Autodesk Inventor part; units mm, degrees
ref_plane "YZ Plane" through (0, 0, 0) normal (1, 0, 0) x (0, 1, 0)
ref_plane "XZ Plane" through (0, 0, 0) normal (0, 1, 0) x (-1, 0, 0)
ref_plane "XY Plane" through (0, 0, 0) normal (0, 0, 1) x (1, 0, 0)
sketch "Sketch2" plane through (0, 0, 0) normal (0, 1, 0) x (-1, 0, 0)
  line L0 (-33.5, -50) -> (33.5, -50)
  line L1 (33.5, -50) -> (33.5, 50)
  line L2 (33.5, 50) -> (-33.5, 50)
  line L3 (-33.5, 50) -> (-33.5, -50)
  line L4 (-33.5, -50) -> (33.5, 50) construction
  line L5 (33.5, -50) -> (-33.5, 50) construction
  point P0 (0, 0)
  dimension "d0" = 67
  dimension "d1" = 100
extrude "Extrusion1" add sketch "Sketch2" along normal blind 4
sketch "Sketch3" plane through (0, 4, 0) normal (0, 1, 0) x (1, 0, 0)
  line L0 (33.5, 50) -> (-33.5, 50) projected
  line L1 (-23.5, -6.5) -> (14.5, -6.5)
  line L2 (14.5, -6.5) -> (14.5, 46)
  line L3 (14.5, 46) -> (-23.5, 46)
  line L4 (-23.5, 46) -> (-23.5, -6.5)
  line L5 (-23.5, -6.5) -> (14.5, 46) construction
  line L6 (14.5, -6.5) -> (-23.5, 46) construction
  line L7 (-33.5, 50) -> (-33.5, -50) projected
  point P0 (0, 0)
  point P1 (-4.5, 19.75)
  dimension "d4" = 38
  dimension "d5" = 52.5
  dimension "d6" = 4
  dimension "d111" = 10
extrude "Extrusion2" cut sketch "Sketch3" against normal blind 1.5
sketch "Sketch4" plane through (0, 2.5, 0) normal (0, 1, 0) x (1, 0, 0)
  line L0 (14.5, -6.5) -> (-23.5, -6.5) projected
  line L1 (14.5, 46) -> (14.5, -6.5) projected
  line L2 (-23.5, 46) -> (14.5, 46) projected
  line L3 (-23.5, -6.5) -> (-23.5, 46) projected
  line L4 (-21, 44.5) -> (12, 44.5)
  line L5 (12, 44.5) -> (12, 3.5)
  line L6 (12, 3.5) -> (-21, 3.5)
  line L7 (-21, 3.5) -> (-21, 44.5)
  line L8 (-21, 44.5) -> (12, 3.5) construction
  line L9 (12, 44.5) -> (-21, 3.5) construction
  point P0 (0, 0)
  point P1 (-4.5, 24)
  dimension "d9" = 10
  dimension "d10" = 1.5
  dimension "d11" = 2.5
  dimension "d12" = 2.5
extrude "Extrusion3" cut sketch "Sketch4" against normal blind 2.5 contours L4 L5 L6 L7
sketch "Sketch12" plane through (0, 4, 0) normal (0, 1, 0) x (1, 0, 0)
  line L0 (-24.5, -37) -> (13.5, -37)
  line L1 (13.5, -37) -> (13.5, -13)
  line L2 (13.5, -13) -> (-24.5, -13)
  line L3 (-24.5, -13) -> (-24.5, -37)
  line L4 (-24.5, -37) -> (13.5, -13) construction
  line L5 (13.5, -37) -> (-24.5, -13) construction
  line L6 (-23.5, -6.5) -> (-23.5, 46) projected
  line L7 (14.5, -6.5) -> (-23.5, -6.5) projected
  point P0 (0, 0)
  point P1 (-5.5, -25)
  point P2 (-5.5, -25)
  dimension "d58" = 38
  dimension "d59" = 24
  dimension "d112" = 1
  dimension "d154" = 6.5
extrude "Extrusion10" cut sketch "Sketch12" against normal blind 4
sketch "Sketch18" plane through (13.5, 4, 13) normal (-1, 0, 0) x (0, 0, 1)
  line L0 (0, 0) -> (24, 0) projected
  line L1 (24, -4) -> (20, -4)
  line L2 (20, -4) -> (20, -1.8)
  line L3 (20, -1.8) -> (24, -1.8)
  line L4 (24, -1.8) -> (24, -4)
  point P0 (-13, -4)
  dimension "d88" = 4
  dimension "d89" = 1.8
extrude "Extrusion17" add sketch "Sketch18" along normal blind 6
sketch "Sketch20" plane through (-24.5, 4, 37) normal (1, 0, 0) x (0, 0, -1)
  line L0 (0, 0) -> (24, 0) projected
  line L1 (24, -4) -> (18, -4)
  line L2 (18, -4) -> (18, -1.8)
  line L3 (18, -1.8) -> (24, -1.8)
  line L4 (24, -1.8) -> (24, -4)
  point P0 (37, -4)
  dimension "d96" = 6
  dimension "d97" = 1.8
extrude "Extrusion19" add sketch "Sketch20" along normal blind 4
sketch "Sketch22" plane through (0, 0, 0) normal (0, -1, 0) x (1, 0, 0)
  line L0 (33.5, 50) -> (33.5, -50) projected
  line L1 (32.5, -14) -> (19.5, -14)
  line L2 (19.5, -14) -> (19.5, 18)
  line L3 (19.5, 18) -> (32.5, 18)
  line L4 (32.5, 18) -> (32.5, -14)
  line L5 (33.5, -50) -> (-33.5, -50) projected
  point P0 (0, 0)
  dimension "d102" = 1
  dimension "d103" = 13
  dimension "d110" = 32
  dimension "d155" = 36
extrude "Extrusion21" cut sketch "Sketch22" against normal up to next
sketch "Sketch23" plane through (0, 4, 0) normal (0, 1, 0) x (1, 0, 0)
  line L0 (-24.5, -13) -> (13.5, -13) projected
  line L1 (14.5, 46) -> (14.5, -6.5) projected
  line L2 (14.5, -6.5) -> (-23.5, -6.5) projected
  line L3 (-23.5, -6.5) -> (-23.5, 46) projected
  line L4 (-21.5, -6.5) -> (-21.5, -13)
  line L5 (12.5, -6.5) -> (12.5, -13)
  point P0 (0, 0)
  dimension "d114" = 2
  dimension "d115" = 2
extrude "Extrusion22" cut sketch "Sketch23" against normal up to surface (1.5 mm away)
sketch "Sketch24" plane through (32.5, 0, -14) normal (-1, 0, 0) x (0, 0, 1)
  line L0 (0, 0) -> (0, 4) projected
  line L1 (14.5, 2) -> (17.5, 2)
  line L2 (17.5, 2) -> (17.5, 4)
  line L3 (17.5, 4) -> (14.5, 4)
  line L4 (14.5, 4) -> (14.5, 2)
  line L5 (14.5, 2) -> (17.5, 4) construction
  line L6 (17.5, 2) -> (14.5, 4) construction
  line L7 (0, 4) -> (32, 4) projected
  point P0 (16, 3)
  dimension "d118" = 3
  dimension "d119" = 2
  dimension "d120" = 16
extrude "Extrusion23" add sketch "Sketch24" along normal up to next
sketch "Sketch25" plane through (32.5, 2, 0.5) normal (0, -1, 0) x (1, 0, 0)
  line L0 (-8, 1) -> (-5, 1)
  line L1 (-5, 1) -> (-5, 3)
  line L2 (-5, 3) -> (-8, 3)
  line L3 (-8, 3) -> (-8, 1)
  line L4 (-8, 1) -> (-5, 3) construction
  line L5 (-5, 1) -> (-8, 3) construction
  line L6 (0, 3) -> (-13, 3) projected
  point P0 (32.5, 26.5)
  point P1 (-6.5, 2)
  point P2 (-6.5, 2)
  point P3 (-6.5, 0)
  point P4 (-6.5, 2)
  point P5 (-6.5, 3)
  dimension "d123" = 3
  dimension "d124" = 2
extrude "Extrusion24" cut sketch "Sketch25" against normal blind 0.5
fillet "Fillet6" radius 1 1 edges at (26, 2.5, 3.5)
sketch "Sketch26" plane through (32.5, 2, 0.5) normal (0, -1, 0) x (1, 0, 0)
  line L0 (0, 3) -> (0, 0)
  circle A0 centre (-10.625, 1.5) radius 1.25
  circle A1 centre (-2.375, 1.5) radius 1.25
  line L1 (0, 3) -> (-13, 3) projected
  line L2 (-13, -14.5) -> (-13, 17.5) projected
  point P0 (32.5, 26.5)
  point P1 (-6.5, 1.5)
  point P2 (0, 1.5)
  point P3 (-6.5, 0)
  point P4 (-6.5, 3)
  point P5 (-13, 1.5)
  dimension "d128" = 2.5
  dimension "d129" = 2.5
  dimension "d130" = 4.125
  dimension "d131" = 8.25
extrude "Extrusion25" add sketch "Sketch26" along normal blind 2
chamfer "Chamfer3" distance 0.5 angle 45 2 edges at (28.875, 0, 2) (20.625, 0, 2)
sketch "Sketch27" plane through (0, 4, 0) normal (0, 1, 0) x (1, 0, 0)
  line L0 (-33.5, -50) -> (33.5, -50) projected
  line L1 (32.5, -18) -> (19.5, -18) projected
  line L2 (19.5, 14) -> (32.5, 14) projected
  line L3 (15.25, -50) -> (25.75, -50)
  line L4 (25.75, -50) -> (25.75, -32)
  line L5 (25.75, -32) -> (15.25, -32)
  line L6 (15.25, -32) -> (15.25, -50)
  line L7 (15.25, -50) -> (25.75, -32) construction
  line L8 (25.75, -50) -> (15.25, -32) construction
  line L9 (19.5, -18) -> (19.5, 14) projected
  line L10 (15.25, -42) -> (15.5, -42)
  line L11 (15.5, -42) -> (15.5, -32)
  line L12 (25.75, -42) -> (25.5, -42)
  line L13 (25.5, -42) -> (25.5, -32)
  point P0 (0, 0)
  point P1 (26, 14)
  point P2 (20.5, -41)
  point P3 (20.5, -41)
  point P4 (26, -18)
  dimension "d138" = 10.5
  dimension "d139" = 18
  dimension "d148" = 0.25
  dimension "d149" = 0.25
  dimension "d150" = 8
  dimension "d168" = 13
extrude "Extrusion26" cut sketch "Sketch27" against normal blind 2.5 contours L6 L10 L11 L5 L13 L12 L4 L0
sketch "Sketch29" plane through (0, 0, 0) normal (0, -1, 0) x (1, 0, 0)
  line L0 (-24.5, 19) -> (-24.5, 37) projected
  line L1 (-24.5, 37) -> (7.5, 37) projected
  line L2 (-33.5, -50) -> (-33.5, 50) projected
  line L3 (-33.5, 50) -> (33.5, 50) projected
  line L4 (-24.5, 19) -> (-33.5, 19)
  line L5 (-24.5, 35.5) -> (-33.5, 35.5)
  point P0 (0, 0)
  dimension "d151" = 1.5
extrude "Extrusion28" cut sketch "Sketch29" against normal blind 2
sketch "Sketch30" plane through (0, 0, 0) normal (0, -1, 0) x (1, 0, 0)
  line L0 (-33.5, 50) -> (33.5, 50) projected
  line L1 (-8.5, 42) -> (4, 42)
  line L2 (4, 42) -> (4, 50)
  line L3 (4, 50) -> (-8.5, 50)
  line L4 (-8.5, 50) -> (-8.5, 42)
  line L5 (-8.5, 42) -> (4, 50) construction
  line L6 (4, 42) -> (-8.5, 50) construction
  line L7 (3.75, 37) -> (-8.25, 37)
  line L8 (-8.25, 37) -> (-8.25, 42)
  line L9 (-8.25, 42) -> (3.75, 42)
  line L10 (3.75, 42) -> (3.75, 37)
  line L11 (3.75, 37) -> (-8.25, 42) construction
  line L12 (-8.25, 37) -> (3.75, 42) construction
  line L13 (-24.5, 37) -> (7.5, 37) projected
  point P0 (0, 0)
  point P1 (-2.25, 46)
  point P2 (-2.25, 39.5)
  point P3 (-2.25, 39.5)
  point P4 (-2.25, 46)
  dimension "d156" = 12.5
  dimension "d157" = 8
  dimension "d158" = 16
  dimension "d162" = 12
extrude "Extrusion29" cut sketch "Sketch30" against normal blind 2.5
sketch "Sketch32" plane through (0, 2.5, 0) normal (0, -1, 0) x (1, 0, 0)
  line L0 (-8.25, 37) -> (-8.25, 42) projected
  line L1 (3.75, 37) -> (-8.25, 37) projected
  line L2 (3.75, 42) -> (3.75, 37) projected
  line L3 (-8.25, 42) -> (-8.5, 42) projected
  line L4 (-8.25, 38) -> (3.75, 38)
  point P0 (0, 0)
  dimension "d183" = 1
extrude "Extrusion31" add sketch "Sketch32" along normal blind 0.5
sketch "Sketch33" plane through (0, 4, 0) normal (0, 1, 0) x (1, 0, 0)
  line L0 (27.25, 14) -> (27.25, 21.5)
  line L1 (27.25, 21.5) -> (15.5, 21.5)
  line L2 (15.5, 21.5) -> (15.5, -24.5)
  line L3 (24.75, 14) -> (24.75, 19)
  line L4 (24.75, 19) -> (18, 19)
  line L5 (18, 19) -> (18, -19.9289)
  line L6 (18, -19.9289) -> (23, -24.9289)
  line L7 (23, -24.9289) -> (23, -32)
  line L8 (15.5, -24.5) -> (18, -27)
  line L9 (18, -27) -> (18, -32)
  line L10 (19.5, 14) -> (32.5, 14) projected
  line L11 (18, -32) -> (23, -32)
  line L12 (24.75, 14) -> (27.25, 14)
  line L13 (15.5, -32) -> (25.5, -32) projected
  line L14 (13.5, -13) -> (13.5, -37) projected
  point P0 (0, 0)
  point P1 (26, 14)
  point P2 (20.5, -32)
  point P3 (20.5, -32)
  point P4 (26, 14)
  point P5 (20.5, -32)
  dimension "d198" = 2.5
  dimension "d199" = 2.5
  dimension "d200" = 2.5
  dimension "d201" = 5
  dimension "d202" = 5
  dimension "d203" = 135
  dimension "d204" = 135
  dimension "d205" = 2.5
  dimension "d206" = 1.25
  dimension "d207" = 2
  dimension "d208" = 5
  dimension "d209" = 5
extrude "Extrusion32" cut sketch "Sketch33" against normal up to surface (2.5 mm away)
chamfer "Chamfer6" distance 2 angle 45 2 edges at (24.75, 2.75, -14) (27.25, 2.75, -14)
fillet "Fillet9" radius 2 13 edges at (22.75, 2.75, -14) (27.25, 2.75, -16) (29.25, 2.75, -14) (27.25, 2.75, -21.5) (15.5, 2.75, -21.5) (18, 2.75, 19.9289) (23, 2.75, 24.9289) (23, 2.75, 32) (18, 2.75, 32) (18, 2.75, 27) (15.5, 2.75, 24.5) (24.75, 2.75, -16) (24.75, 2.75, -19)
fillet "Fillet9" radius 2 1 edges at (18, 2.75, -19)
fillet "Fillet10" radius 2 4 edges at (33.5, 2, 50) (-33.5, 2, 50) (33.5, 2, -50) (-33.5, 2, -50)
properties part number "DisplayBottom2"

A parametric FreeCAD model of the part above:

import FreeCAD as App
import Part
import Sketcher
from FreeCAD import Vector
Q = App.Units.Quantity


def edges_at(feature, points):
    """Names of the edges that pass closest to the given points."""
    edges = feature.Shape.Edges
    near = lambda p: min(range(len(edges)), key=lambda i: edges[i].distToShape(Part.Vertex(*p))[0])
    return sorted({f"Edge{near(p) + 1}" for p in points})

doc = App.newDocument("Part")
body = doc.addObject("PartDesign::Body", "Body")

# Sketch on XZ plane
sketch1 = doc.addObject("Sketcher::SketchObject", "Sketch")
body.addObject(sketch1)
sketch1.AttachmentSupport = (doc.XZ_Plane, [""])
sketch1.MapMode = "FlatFace"
sketch1.addGeometry([
    Part.LineSegment(Vector(33.5, 50, 0), Vector(33.5, -50, 0)),
    Part.LineSegment(Vector(33.5, -50, 0), Vector(-33.5, -50, 0)),
    Part.LineSegment(Vector(-33.5, -50, 0), Vector(-33.5, 50, 0)),
    Part.LineSegment(Vector(-33.5, 50, 0), Vector(33.5, 50, 0)),
], False)
sketch1.addConstraint([
    Sketcher.Constraint("Coincident", 0, 2, 1, 1),
    Sketcher.Constraint("Coincident", 1, 2, 2, 1),
    Sketcher.Constraint("Coincident", 2, 2, 3, 1),
    Sketcher.Constraint("Coincident", 3, 2, 0, 1),
    Sketcher.Constraint("Vertical", 0),
    Sketcher.Constraint("Horizontal", 1),
    Sketcher.Constraint("Vertical", 2),
    Sketcher.Constraint("Horizontal", 3),
    Sketcher.Constraint("Symmetric", 0, 2, 2, 2, -1, 1),
    Sketcher.Constraint("DistanceX", 1, 2, 1, 1, Q("67 mm")),
    Sketcher.Constraint("DistanceY", 0, 2, 0, 1, Q("100 mm")),
])
pad1 = doc.addObject("PartDesign::Pad", "Pad")
body.addObject(pad1)
pad1.Profile = sketch1
pad1.Length = 4
pad1.Reversed = True

# Sketch on XZ plane
sketch2 = doc.addObject("Sketcher::SketchObject", "Sketch001")
body.addObject(sketch2)
sketch2.AttachmentSupport = (doc.XZ_Plane, [""])
sketch2.MapMode = "FlatFace"
sketch2.AttachmentOffset = App.Placement(Vector(0, 0, -4), App.Rotation())
sketch2.addGeometry([
    Part.LineSegment(Vector(-23.5, -46, 0), Vector(-23.5, 6.5, 0)),
    Part.LineSegment(Vector(-23.5, 6.5, 0), Vector(14.5, 6.5, 0)),
    Part.LineSegment(Vector(14.5, 6.5, 0), Vector(14.5, -46, 0)),
    Part.LineSegment(Vector(14.5, -46, 0), Vector(-23.5, -46, 0)),
], False)
sketch2.addConstraint([
    Sketcher.Constraint("Coincident", 0, 2, 1, 1),
    Sketcher.Constraint("Coincident", 1, 2, 2, 1),
    Sketcher.Constraint("Coincident", 2, 2, 3, 1),
    Sketcher.Constraint("Coincident", 3, 2, 0, 1),
    Sketcher.Constraint("Vertical", 0),
    Sketcher.Constraint("Horizontal", 1),
    Sketcher.Constraint("Vertical", 2),
    Sketcher.Constraint("Horizontal", 3),
    Sketcher.Constraint("DistanceX", 1, 1, 1, 2, Q("38 mm")),
    Sketcher.Constraint("DistanceY", 0, 1, 0, 2, Q("52.5 mm")),
    Sketcher.Constraint("DistanceY", 2, 2, -1, 1, Q("46 mm")),
    Sketcher.Constraint("DistanceX", 0, 2, -1, 1, Q("23.5 mm")),
])
pocket1 = doc.addObject("PartDesign::Pocket", "Pocket")
body.addObject(pocket1)
pocket1.Profile = sketch2
pocket1.Length = 1.5
pocket1.Reversed = True

# Sketch on XZ plane
sketch3 = doc.addObject("Sketcher::SketchObject", "Sketch002")
body.addObject(sketch3)
sketch3.AttachmentSupport = (doc.XZ_Plane, [""])
sketch3.MapMode = "FlatFace"
sketch3.AttachmentOffset = App.Placement(Vector(0, 0, -2.5), App.Rotation())
sketch3.addGeometry([
    Part.LineSegment(Vector(12, -44.5, 0), Vector(-21, -44.5, 0)),
    Part.LineSegment(Vector(-21, -44.5, 0), Vector(-21, -3.5, 0)),
    Part.LineSegment(Vector(-21, -3.5, 0), Vector(12, -3.5, 0)),
    Part.LineSegment(Vector(12, -3.5, 0), Vector(12, -44.5, 0)),
], False)
sketch3.addConstraint([
    Sketcher.Constraint("Coincident", 0, 2, 1, 1),
    Sketcher.Constraint("Coincident", 1, 2, 2, 1),
    Sketcher.Constraint("Coincident", 2, 2, 3, 1),
    Sketcher.Constraint("Coincident", 3, 2, 0, 1),
    Sketcher.Constraint("Horizontal", 0),
    Sketcher.Constraint("Vertical", 1),
    Sketcher.Constraint("Horizontal", 2),
    Sketcher.Constraint("Vertical", 3),
    Sketcher.Constraint("DistanceX", 0, 2, 0, 1, Q("33 mm")),
    Sketcher.Constraint("DistanceY", 1, 1, 1, 2, Q("41 mm")),
    Sketcher.Constraint("DistanceX", 0, 2, -1, 1, Q("21 mm")),
    Sketcher.Constraint("DistanceY", 0, 2, -1, 1, Q("44.5 mm")),
])
pocket2 = doc.addObject("PartDesign::Pocket", "Pocket001")
body.addObject(pocket2)
pocket2.Profile = sketch3
pocket2.Length = 2.5
pocket2.Reversed = True

# Sketch on XZ plane
sketch4 = doc.addObject("Sketcher::SketchObject", "Sketch003")
body.addObject(sketch4)
sketch4.AttachmentSupport = (doc.XZ_Plane, [""])
sketch4.MapMode = "FlatFace"
sketch4.AttachmentOffset = App.Placement(Vector(0, 0, -4), App.Rotation())
sketch4.addGeometry([
    Part.LineSegment(Vector(-24.5, 13, 0), Vector(-24.5, 37, 0)),
    Part.LineSegment(Vector(-24.5, 37, 0), Vector(13.5, 37, 0)),
    Part.LineSegment(Vector(13.5, 37, 0), Vector(13.5, 13, 0)),
    Part.LineSegment(Vector(13.5, 13, 0), Vector(-24.5, 13, 0)),
], False)
sketch4.addConstraint([
    Sketcher.Constraint("Coincident", 0, 2, 1, 1),
    Sketcher.Constraint("Coincident", 1, 2, 2, 1),
    Sketcher.Constraint("Coincident", 2, 2, 3, 1),
    Sketcher.Constraint("Coincident", 3, 2, 0, 1),
    Sketcher.Constraint("Vertical", 0),
    Sketcher.Constraint("Horizontal", 1),
    Sketcher.Constraint("Vertical", 2),
    Sketcher.Constraint("Horizontal", 3),
    Sketcher.Constraint("DistanceX", 1, 1, 1, 2, Q("38 mm")),
    Sketcher.Constraint("DistanceY", 0, 1, 0, 2, Q("24 mm")),
    Sketcher.Constraint("DistanceY", -1, 1, 0, 2, Q("37 mm")),
    Sketcher.Constraint("DistanceX", 0, 2, -1, 1, Q("24.5 mm")),
])
pocket3 = doc.addObject("PartDesign::Pocket", "Pocket002")
body.addObject(pocket3)
pocket3.Profile = sketch4
pocket3.Length = 4
pocket3.Reversed = True

# Sketch on YZ plane
sketch5 = doc.addObject("Sketcher::SketchObject", "Sketch004")
body.addObject(sketch5)
sketch5.AttachmentSupport = (doc.YZ_Plane, [""])
sketch5.MapMode = "FlatFace"
sketch5.AttachmentOffset = App.Placement(Vector(0, 0, 13.5), App.Rotation())
sketch5.addGeometry([
    Part.LineSegment(Vector(0, 33, 0), Vector(0, 37, 0)),
    Part.LineSegment(Vector(0, 37, 0), Vector(2.2, 37, 0)),
    Part.LineSegment(Vector(2.2, 37, 0), Vector(2.2, 33, 0)),
    Part.LineSegment(Vector(2.2, 33, 0), Vector(0, 33, 0)),
], False)
sketch5.addConstraint([
    Sketcher.Constraint("Coincident", 0, 2, 1, 1),
    Sketcher.Constraint("Coincident", 1, 2, 2, 1),
    Sketcher.Constraint("Coincident", 2, 2, 3, 1),
    Sketcher.Constraint("Coincident", 3, 2, 0, 1),
    Sketcher.Constraint("Vertical", 0),
    Sketcher.Constraint("Horizontal", 1),
    Sketcher.Constraint("Vertical", 2),
    Sketcher.Constraint("Horizontal", 3),
    Sketcher.Constraint("PointOnObject", 0, 2, -2),
    Sketcher.Constraint("DistanceY", 0, 1, 0, 2, Q("4 mm")),
    Sketcher.Constraint("DistanceX", 1, 1, 1, 2, Q("2.2 mm")),
    Sketcher.Constraint("DistanceY", -1, 1, 0, 2, Q("37 mm")),
])
pad2 = doc.addObject("PartDesign::Pad", "Pad001")
body.addObject(pad2)
pad2.Profile = sketch5
pad2.Length = 6
pad2.Reversed = True

# Sketch on YZ plane
sketch6 = doc.addObject("Sketcher::SketchObject", "Sketch005")
body.addObject(sketch6)
sketch6.AttachmentSupport = (doc.YZ_Plane, [""])
sketch6.MapMode = "FlatFace"
sketch6.AttachmentOffset = App.Placement(Vector(0, 0, -24.5), App.Rotation())
sketch6.addGeometry([
    Part.LineSegment(Vector(0, 19, 0), Vector(0, 13, 0)),
    Part.LineSegment(Vector(0, 13, 0), Vector(2.2, 13, 0)),
    Part.LineSegment(Vector(2.2, 13, 0), Vector(2.2, 19, 0)),
    Part.LineSegment(Vector(2.2, 19, 0), Vector(0, 19, 0)),
], False)
sketch6.addConstraint([
    Sketcher.Constraint("Coincident", 0, 2, 1, 1),
    Sketcher.Constraint("Coincident", 1, 2, 2, 1),
    Sketcher.Constraint("Coincident", 2, 2, 3, 1),
    Sketcher.Constraint("Coincident", 3, 2, 0, 1),
    Sketcher.Constraint("Vertical", 0),
    Sketcher.Constraint("Horizontal", 1),
    Sketcher.Constraint("Vertical", 2),
    Sketcher.Constraint("Horizontal", 3),
    Sketcher.Constraint("PointOnObject", 0, 2, -2),
    Sketcher.Constraint("DistanceY", 0, 2, 0, 1, Q("6 mm")),
    Sketcher.Constraint("DistanceX", 1, 1, 1, 2, Q("2.2 mm")),
    Sketcher.Constraint("DistanceY", -1, 1, 0, 2, Q("13 mm")),
])
pad3 = doc.addObject("PartDesign::Pad", "Pad002")
body.addObject(pad3)
pad3.Profile = sketch6
pad3.Length = 4

# Sketch on XZ plane
sketch7 = doc.addObject("Sketcher::SketchObject", "Sketch006")
body.addObject(sketch7)
sketch7.AttachmentSupport = (doc.XZ_Plane, [""])
sketch7.MapMode = "FlatFace"
sketch7.addGeometry([
    Part.LineSegment(Vector(19.5, -14, 0), Vector(32.5, -14, 0)),
    Part.LineSegment(Vector(32.5, -14, 0), Vector(32.5, 18, 0)),
    Part.LineSegment(Vector(32.5, 18, 0), Vector(19.5, 18, 0)),
    Part.LineSegment(Vector(19.5, 18, 0), Vector(19.5, -14, 0)),
], False)
sketch7.addConstraint([
    Sketcher.Constraint("Coincident", 0, 2, 1, 1),
    Sketcher.Constraint("Coincident", 1, 2, 2, 1),
    Sketcher.Constraint("Coincident", 2, 2, 3, 1),
    Sketcher.Constraint("Coincident", 3, 2, 0, 1),
    Sketcher.Constraint("Horizontal", 0),
    Sketcher.Constraint("Vertical", 1),
    Sketcher.Constraint("Horizontal", 2),
    Sketcher.Constraint("Vertical", 3),
    Sketcher.Constraint("DistanceX", 0, 1, 0, 2, Q("13 mm")),
    Sketcher.Constraint("DistanceY", 1, 1, 1, 2, Q("32 mm")),
    Sketcher.Constraint("DistanceY", 0, 2, -1, 1, Q("14 mm")),
    Sketcher.Constraint("DistanceX", -1, 1, 0, 2, Q("32.5 mm")),
])
pocket4 = doc.addObject("PartDesign::Pocket", "Pocket003")
body.addObject(pocket4)
pocket4.Profile = sketch7
pocket4.Type = "UpToFirst"

# Sketch on XZ plane
sketch8 = doc.addObject("Sketcher::SketchObject", "Sketch007")
body.addObject(sketch8)
sketch8.AttachmentSupport = (doc.XZ_Plane, [""])
sketch8.MapMode = "FlatFace"
sketch8.AttachmentOffset = App.Placement(Vector(0, 0, -4), App.Rotation())
sketch8.addGeometry([
    Part.LineSegment(Vector(-21.5, 6.5, 0), Vector(-21.5, 13, 0)),
    Part.LineSegment(Vector(-21.5, 13, 0), Vector(12.5, 13, 0)),
    Part.LineSegment(Vector(12.5, 13, 0), Vector(12.5, 6.5, 0)),
    Part.LineSegment(Vector(12.5, 6.5, 0), Vector(-21.5, 6.5, 0)),
], False)
sketch8.addConstraint([
    Sketcher.Constraint("Coincident", 0, 2, 1, 1),
    Sketcher.Constraint("Coincident", 1, 2, 2, 1),
    Sketcher.Constraint("Coincident", 2, 2, 3, 1),
    Sketcher.Constraint("Coincident", 3, 2, 0, 1),
    Sketcher.Constraint("Vertical", 0),
    Sketcher.Constraint("Horizontal", 1),
    Sketcher.Constraint("Vertical", 2),
    Sketcher.Constraint("Horizontal", 3),
    Sketcher.Constraint("DistanceX", 1, 1, 1, 2, Q("34 mm")),
    Sketcher.Constraint("DistanceY", 0, 1, 0, 2, Q("6.5 mm")),
    Sketcher.Constraint("DistanceY", -1, 1, 0, 2, Q("13 mm")),
    Sketcher.Constraint("DistanceX", 0, 2, -1, 1, Q("21.5 mm")),
])
pocket5 = doc.addObject("PartDesign::Pocket", "Pocket004")
body.addObject(pocket5)
pocket5.Profile = sketch8
pocket5.Length = 1.5
pocket5.Reversed = True

# Sketch on YZ plane
sketch9 = doc.addObject("Sketcher::SketchObject", "Sketch008")
body.addObject(sketch9)
sketch9.AttachmentSupport = (doc.YZ_Plane, [""])
sketch9.MapMode = "FlatFace"
sketch9.AttachmentOffset = App.Placement(Vector(0, 0, 32.5), App.Rotation())
sketch9.addGeometry([
    Part.LineSegment(Vector(4, 0.5, 0), Vector(2, 0.5, 0)),
    Part.LineSegment(Vector(2, 0.5, 0), Vector(2, 3.5, 0)),
    Part.LineSegment(Vector(2, 3.5, 0), Vector(4, 3.5, 0)),
    Part.LineSegment(Vector(4, 3.5, 0), Vector(4, 0.5, 0)),
], False)
sketch9.addConstraint([
    Sketcher.Constraint("Coincident", 0, 2, 1, 1),
    Sketcher.Constraint("Coincident", 1, 2, 2, 1),
    Sketcher.Constraint("Coincident", 2, 2, 3, 1),
    Sketcher.Constraint("Coincident", 3, 2, 0, 1),
    Sketcher.Constraint("Horizontal", 0),
    Sketcher.Constraint("Vertical", 1),
    Sketcher.Constraint("Horizontal", 2),
    Sketcher.Constraint("Vertical", 3),
    Sketcher.Constraint("DistanceX", 0, 2, 0, 1, Q("2 mm")),
    Sketcher.Constraint("DistanceY", 1, 1, 1, 2, Q("3 mm")),
    Sketcher.Constraint("DistanceX", -1, 1, 0, 2, Q("2 mm")),
    Sketcher.Constraint("DistanceY", -1, 1, 0, 2, Q("0.5 mm")),
])
pad4 = doc.addObject("PartDesign::Pad", "Pad003")
body.addObject(pad4)
pad4.Profile = sketch9
pad4.Type = "UpToFirst"
pad4.Reversed = True

# Sketch on XZ plane
sketch10 = doc.addObject("Sketcher::SketchObject", "Sketch009")
body.addObject(sketch10)
sketch10.AttachmentSupport = (doc.XZ_Plane, [""])
sketch10.MapMode = "FlatFace"
sketch10.AttachmentOffset = App.Placement(Vector(0, 0, -2), App.Rotation())
sketch10.addGeometry([
    Part.LineSegment(Vector(24.5, 3.5, 0), Vector(24.5, 1.5, 0)),
    Part.LineSegment(Vector(24.5, 1.5, 0), Vector(27.5, 1.5, 0)),
    Part.LineSegment(Vector(27.5, 1.5, 0), Vector(27.5, 3.5, 0)),
    Part.LineSegment(Vector(27.5, 3.5, 0), Vector(24.5, 3.5, 0)),
], False)
sketch10.addConstraint([
    Sketcher.Constraint("Coincident", 0, 2, 1, 1),
    Sketcher.Constraint("Coincident", 1, 2, 2, 1),
    Sketcher.Constraint("Coincident", 2, 2, 3, 1),
    Sketcher.Constraint("Coincident", 3, 2, 0, 1),
    Sketcher.Constraint("Vertical", 0),
    Sketcher.Constraint("Horizontal", 1),
    Sketcher.Constraint("Vertical", 2),
    Sketcher.Constraint("Horizontal", 3),
    Sketcher.Constraint("DistanceX", 1, 1, 1, 2, Q("3 mm")),
    Sketcher.Constraint("DistanceY", 0, 2, 0, 1, Q("2 mm")),
    Sketcher.Constraint("DistanceX", -1, 1, 0, 2, Q("24.5 mm")),
    Sketcher.Constraint("DistanceY", -1, 1, 0, 2, Q("1.5 mm")),
])
pocket6 = doc.addObject("PartDesign::Pocket", "Pocket005")
body.addObject(pocket6)
pocket6.Profile = sketch10
pocket6.Length = 0.5
doc.recompute()

fillet = doc.addObject("PartDesign::Fillet", "Fillet")
body.addObject(fillet)
fillet.Base = (pocket6, edges_at(pocket6, [(26, 2.5, 3.5)]))
fillet.Radius = 1

# Sketch on XZ plane
sketch11 = doc.addObject("Sketcher::SketchObject", "Sketch010")
body.addObject(sketch11)
sketch11.AttachmentSupport = (doc.XZ_Plane, [""])
sketch11.MapMode = "FlatFace"
sketch11.AttachmentOffset = App.Placement(Vector(0, 0, -2), App.Rotation())
sketch11.addGeometry([
    Part.Circle(Vector(21.875, 2, 0), Vector(0, 0, 1), 1.25),
    Part.Circle(Vector(30.125, 2, 0), Vector(0, 0, 1), 1.25),
], False)
sketch11.addConstraint([
    Sketcher.Constraint("Equal", 0, 1),
    Sketcher.Constraint("Horizontal", 0, 3, 1, 3),
    Sketcher.Constraint("Diameter", 0, Q("2.5 mm")),
    Sketcher.Constraint("DistanceX", 0, 3, 1, 3, Q("8.25 mm")),
    Sketcher.Constraint("DistanceY", -1, 1, 0, 3, Q("2 mm")),
    Sketcher.Constraint("DistanceX", -1, 1, 0, 3, Q("21.875 mm")),
])
pad5 = doc.addObject("PartDesign::Pad", "Pad004")
body.addObject(pad5)
pad5.Profile = sketch11
pad5.Length = 2
doc.recompute()

chamfer = doc.addObject("PartDesign::Chamfer", "Chamfer")
body.addObject(chamfer)
chamfer.Base = (pad5, edges_at(pad5, [(28.875, 0, 2), (20.625, 0, 2)]))
chamfer.Size = 0.5

# Sketch on XZ plane
sketch12 = doc.addObject("Sketcher::SketchObject", "Sketch011")
body.addObject(sketch12)
sketch12.AttachmentSupport = (doc.XZ_Plane, [""])
sketch12.MapMode = "FlatFace"
sketch12.AttachmentOffset = App.Placement(Vector(0, 0, -4), App.Rotation())
sketch12.addGeometry([
    Part.LineSegment(Vector(15.25, 42, 0), Vector(15.25, 50, 0)),  # 0
    Part.LineSegment(Vector(15.25, 50, 0), Vector(25.75, 50, 0)),  # 1
    Part.LineSegment(Vector(25.75, 50, 0), Vector(25.75, 42, 0)),  # 2
    Part.LineSegment(Vector(25.75, 42, 0), Vector(25.5, 42, 0)),  # 3
    Part.LineSegment(Vector(25.5, 42, 0), Vector(25.5, 32, 0)),  # 4
    Part.LineSegment(Vector(25.5, 32, 0), Vector(15.5, 32, 0)),  # 5
    Part.LineSegment(Vector(15.5, 32, 0), Vector(15.5, 42, 0)),  # 6
    Part.LineSegment(Vector(15.5, 42, 0), Vector(15.25, 42, 0)),  # 7
], False)
sketch12.addConstraint([
    Sketcher.Constraint("Coincident", 0, 2, 1, 1),
    Sketcher.Constraint("Coincident", 1, 2, 2, 1),
    Sketcher.Constraint("Coincident", 2, 2, 3, 1),
    Sketcher.Constraint("Coincident", 3, 2, 4, 1),
    Sketcher.Constraint("Coincident", 4, 2, 5, 1),
    Sketcher.Constraint("Coincident", 5, 2, 6, 1),
    Sketcher.Constraint("Coincident", 6, 2, 7, 1),
    Sketcher.Constraint("Coincident", 7, 2, 0, 1),
    Sketcher.Constraint("Vertical", 0),
    Sketcher.Constraint("Horizontal", 1),
    Sketcher.Constraint("Vertical", 2),
    Sketcher.Constraint("Horizontal", 3),
    Sketcher.Constraint("Vertical", 4),
    Sketcher.Constraint("Horizontal", 5),
    Sketcher.Constraint("Vertical", 6),
    Sketcher.Constraint("Horizontal", 7),
    Sketcher.Constraint("Horizontal", 3, 2, 6, 2),
    Sketcher.Constraint("Equal", 3, 7),
    Sketcher.Constraint("Equal", 5, 4),
    Sketcher.Constraint("DistanceY", 0, 1, 0, 2, Q("8 mm")),
    Sketcher.Constraint("DistanceX", 1, 1, 1, 2, Q("10.5 mm")),
    Sketcher.Constraint("DistanceY", 4, 2, 1, 2, Q("18 mm")),
    Sketcher.Constraint("DistanceY", -1, 1, 0, 2, Q("50 mm")),
    Sketcher.Constraint("DistanceX", -1, 1, 3, 2, Q("25.5 mm")),
])
pocket7 = doc.addObject("PartDesign::Pocket", "Pocket006")
body.addObject(pocket7)
pocket7.Profile = sketch12
pocket7.Length = 2.5
pocket7.Reversed = True

# Sketch on XZ plane
sketch13 = doc.addObject("Sketcher::SketchObject", "Sketch012")
body.addObject(sketch13)
sketch13.AttachmentSupport = (doc.XZ_Plane, [""])
sketch13.MapMode = "FlatFace"
sketch13.addGeometry([
    Part.LineSegment(Vector(-33.5, 19, 0), Vector(-24.5, 19, 0)),
    Part.LineSegment(Vector(-24.5, 19, 0), Vector(-24.5, 35.5, 0)),
    Part.LineSegment(Vector(-24.5, 35.5, 0), Vector(-33.5, 35.5, 0)),
    Part.LineSegment(Vector(-33.5, 35.5, 0), Vector(-33.5, 19, 0)),
], False)
sketch13.addConstraint([
    Sketcher.Constraint("Coincident", 0, 2, 1, 1),
    Sketcher.Constraint("Coincident", 1, 2, 2, 1),
    Sketcher.Constraint("Coincident", 2, 2, 3, 1),
    Sketcher.Constraint("Coincident", 3, 2, 0, 1),
    Sketcher.Constraint("Horizontal", 0),
    Sketcher.Constraint("Vertical", 1),
    Sketcher.Constraint("Horizontal", 2),
    Sketcher.Constraint("Vertical", 3),
    Sketcher.Constraint("DistanceX", 0, 1, 0, 2, Q("9 mm")),
    Sketcher.Constraint("DistanceY", 1, 1, 1, 2, Q("16.5 mm")),
    Sketcher.Constraint("DistanceY", -1, 1, 0, 2, Q("19 mm")),
    Sketcher.Constraint("DistanceX", 0, 2, -1, 1, Q("24.5 mm")),
])
pocket8 = doc.addObject("PartDesign::Pocket", "Pocket007")
body.addObject(pocket8)
pocket8.Profile = sketch13
pocket8.Length = 2

# Sketch on XZ plane
sketch14 = doc.addObject("Sketcher::SketchObject", "Sketch013")
body.addObject(sketch14)
sketch14.AttachmentSupport = (doc.XZ_Plane, [""])
sketch14.MapMode = "FlatFace"
sketch14.addGeometry([
    Part.LineSegment(Vector(4, 50, 0), Vector(-8.5, 50, 0)),  # 0
    Part.LineSegment(Vector(-8.5, 50, 0), Vector(-8.5, 42, 0)),  # 1
    Part.LineSegment(Vector(-8.5, 42, 0), Vector(-8.25, 42, 0)),  # 2
    Part.LineSegment(Vector(-8.25, 42, 0), Vector(-8.25, 37, 0)),  # 3
    Part.LineSegment(Vector(-8.25, 37, 0), Vector(3.75, 37, 0)),  # 4
    Part.LineSegment(Vector(3.75, 37, 0), Vector(3.75, 42, 0)),  # 5
    Part.LineSegment(Vector(3.75, 42, 0), Vector(4, 42, 0)),  # 6
    Part.LineSegment(Vector(4, 42, 0), Vector(4, 50, 0)),  # 7
], False)
sketch14.addConstraint([
    Sketcher.Constraint("Coincident", 0, 2, 1, 1),
    Sketcher.Constraint("Coincident", 1, 2, 2, 1),
    Sketcher.Constraint("Coincident", 2, 2, 3, 1),
    Sketcher.Constraint("Coincident", 3, 2, 4, 1),
    Sketcher.Constraint("Coincident", 4, 2, 5, 1),
    Sketcher.Constraint("Coincident", 5, 2, 6, 1),
    Sketcher.Constraint("Coincident", 6, 2, 7, 1),
    Sketcher.Constraint("Coincident", 7, 2, 0, 1),
    Sketcher.Constraint("Horizontal", 0),
    Sketcher.Constraint("Vertical", 1),
    Sketcher.Constraint("Horizontal", 2),
    Sketcher.Constraint("Vertical", 3),
    Sketcher.Constraint("Horizontal", 4),
    Sketcher.Constraint("Vertical", 5),
    Sketcher.Constraint("Horizontal", 6),
    Sketcher.Constraint("Vertical", 7),
    Sketcher.Constraint("Horizontal", 2, 2, 5, 2),
    Sketcher.Constraint("Equal", 2, 6),
    Sketcher.Constraint("DistanceX", 4, 1, 4, 2, Q("12 mm")),
    Sketcher.Constraint("DistanceY", 1, 2, 1, 1, Q("8 mm")),
    Sketcher.Constraint("DistanceX", 0, 2, 0, 1, Q("12.5 mm")),
    Sketcher.Constraint("DistanceY", 3, 2, 3, 1, Q("5 mm")),
    Sketcher.Constraint("DistanceY", -1, 1, 0, 2, Q("50 mm")),
    Sketcher.Constraint("DistanceX", -1, 1, 6, 2, Q("4 mm")),
])
pocket9 = doc.addObject("PartDesign::Pocket", "Pocket008")
body.addObject(pocket9)
pocket9.Profile = sketch14
pocket9.Length = 2.5

# Sketch on XZ plane
sketch15 = doc.addObject("Sketcher::SketchObject", "Sketch014")
body.addObject(sketch15)
sketch15.AttachmentSupport = (doc.XZ_Plane, [""])
sketch15.MapMode = "FlatFace"
sketch15.AttachmentOffset = App.Placement(Vector(0, 0, -2.5), App.Rotation())
sketch15.addGeometry([
    Part.LineSegment(Vector(-8.25, 38, 0), Vector(-8.25, 37, 0)),
    Part.LineSegment(Vector(-8.25, 37, 0), Vector(3.75, 37, 0)),
    Part.LineSegment(Vector(3.75, 37, 0), Vector(3.75, 38, 0)),
    Part.LineSegment(Vector(3.75, 38, 0), Vector(-8.25, 38, 0)),
], False)
sketch15.addConstraint([
    Sketcher.Constraint("Coincident", 0, 2, 1, 1),
    Sketcher.Constraint("Coincident", 1, 2, 2, 1),
    Sketcher.Constraint("Coincident", 2, 2, 3, 1),
    Sketcher.Constraint("Coincident", 3, 2, 0, 1),
    Sketcher.Constraint("Vertical", 0),
    Sketcher.Constraint("Horizontal", 1),
    Sketcher.Constraint("Vertical", 2),
    Sketcher.Constraint("Horizontal", 3),
    Sketcher.Constraint("DistanceY", 0, 2, 0, 1, Q("1 mm")),
    Sketcher.Constraint("DistanceX", 1, 1, 1, 2, Q("12 mm")),
    Sketcher.Constraint("DistanceY", -1, 1, 0, 2, Q("37 mm")),
    Sketcher.Constraint("DistanceX", 0, 2, -1, 1, Q("8.25 mm")),
])
pad6 = doc.addObject("PartDesign::Pad", "Pad005")
body.addObject(pad6)
pad6.Profile = sketch15
pad6.Length = 0.5

# Sketch on XZ plane
sketch16 = doc.addObject("Sketcher::SketchObject", "Sketch015")
body.addObject(sketch16)
sketch16.AttachmentSupport = (doc.XZ_Plane, [""])
sketch16.MapMode = "FlatFace"
sketch16.AttachmentOffset = App.Placement(Vector(0, 0, -4), App.Rotation())
sketch16.addGeometry([
    Part.LineSegment(Vector(24.75, -14, 0), Vector(27.25, -14, 0)),  # 0
    Part.LineSegment(Vector(27.25, -14, 0), Vector(27.25, -21.5, 0)),  # 1
    Part.LineSegment(Vector(27.25, -21.5, 0), Vector(15.5, -21.5, 0)),  # 2
    Part.LineSegment(Vector(15.5, -21.5, 0), Vector(15.5, 24.5, 0)),  # 3
    Part.LineSegment(Vector(15.5, 24.5, 0), Vector(18, 27, 0)),  # 4
    Part.LineSegment(Vector(18, 27, 0), Vector(18, 32, 0)),  # 5
    Part.LineSegment(Vector(18, 32, 0), Vector(23, 32, 0)),  # 6
    Part.LineSegment(Vector(23, 32, 0), Vector(23, 24.9289, 0)),  # 7
    Part.LineSegment(Vector(23, 24.9289, 0), Vector(18, 19.9289, 0)),  # 8
    Part.LineSegment(Vector(18, 19.9289, 0), Vector(18, -19, 0)),  # 9
    Part.LineSegment(Vector(18, -19, 0), Vector(24.75, -19, 0)),  # 10
    Part.LineSegment(Vector(24.75, -19, 0), Vector(24.75, -14, 0)),  # 11
], False)
sketch16.addConstraint([
    Sketcher.Constraint("Coincident", 0, 2, 1, 1),
    Sketcher.Constraint("Coincident", 1, 2, 2, 1),
    Sketcher.Constraint("Coincident", 2, 2, 3, 1),
    Sketcher.Constraint("Coincident", 3, 2, 4, 1),
    Sketcher.Constraint("Coincident", 4, 2, 5, 1),
    Sketcher.Constraint("Coincident", 5, 2, 6, 1),
    Sketcher.Constraint("Coincident", 6, 2, 7, 1),
    Sketcher.Constraint("Coincident", 7, 2, 8, 1),
    Sketcher.Constraint("Coincident", 8, 2, 9, 1),
    Sketcher.Constraint("Coincident", 9, 2, 10, 1),
    Sketcher.Constraint("Coincident", 10, 2, 11, 1),
    Sketcher.Constraint("Coincident", 11, 2, 0, 1),
    Sketcher.Constraint("Horizontal", 0),
    Sketcher.Constraint("Vertical", 1),
    Sketcher.Constraint("Horizontal", 2),
    Sketcher.Constraint("Vertical", 3),
    Sketcher.Constraint("Vertical", 5),
    Sketcher.Constraint("Horizontal", 6),
    Sketcher.Constraint("Vertical", 7),
    Sketcher.Constraint("Vertical", 9),
    Sketcher.Constraint("Horizontal", 10),
    Sketcher.Constraint("Vertical", 11),
    Sketcher.Constraint("Parallel", 4, 8),
    Sketcher.Constraint("Vertical", 5, 2, 8, 2),
    Sketcher.Constraint("Equal", 6, 5),
    Sketcher.Constraint("Equal", 5, 11),
    Sketcher.Constraint("DistanceX", 6, 1, 6, 2, Q("5 mm")),
    Sketcher.Constraint("Angle", 8, Q("-135 deg")),
    Sketcher.Constraint("DistanceX", 0, 1, 0, 2, Q("2.5 mm")),
    Sketcher.Constraint("DistanceX", 3, 2, 4, 2, Q("2.5 mm")),
    Sketcher.Constraint("DistanceY", 2, 2, 9, 2, Q("2.5 mm")),
    Sketcher.Constraint("DistanceY", 3, 1, 3, 2, Q("46 mm")),
    Sketcher.Constraint("DistanceY", 0, 2, -1, 1, Q("14 mm")),
    Sketcher.Constraint("DistanceX", -1, 1, 4, 2, Q("18 mm")),
    Sketcher.Constraint("DistanceX", 2, 2, 2, 1, Q("11.75 mm")),
    Sketcher.Constraint("DistanceY", 7, 2, 7, 1, Q("7.071 mm")),
])
pocket10 = doc.addObject("PartDesign::Pocket", "Pocket009")
body.addObject(pocket10)
pocket10.Profile = sketch16
pocket10.Length = 2.5
pocket10.Reversed = True
doc.recompute()

chamfer2 = doc.addObject("PartDesign::Chamfer", "Chamfer001")
body.addObject(chamfer2)
chamfer2.Base = (pocket10, edges_at(pocket10, [(24.75, 2.75, -14), (27.25, 2.75, -14)]))
chamfer2.Size = 2
doc.recompute()

fillet2 = doc.addObject("PartDesign::Fillet", "Fillet001")
body.addObject(fillet2)
fillet2.Base = (chamfer2, edges_at(chamfer2, [
    (22.75, 2.75, -14),
    (27.25, 2.75, -16),
    (29.25, 2.75, -14),
    (27.25, 2.75, -21.5),
    (15.5, 2.75, -21.5),
    (18, 2.75, 19.929),
    (23, 2.75, 24.929),
    (23, 2.75, 32),
    (18, 2.75, 32),
    (18, 2.75, 27),
    (15.5, 2.75, 24.5),
    (24.75, 2.75, -16),
    (24.75, 2.75, -19),
]))
fillet2.Radius = 2
doc.recompute()

fillet3 = doc.addObject("PartDesign::Fillet", "Fillet002")
body.addObject(fillet3)
fillet3.Base = (fillet2, edges_at(fillet2, [(18, 2.75, -19)]))
fillet3.Radius = 2
doc.recompute()

fillet4 = doc.addObject("PartDesign::Fillet", "Fillet003")
body.addObject(fillet4)
fillet4.Base = (fillet3, edges_at(fillet3, [
    (33.5, 2, 50),
    (-33.5, 2, 50),
    (33.5, 2, -50),
    (-33.5, 2, -50),
]))
fillet4.Radius = 2

doc.recompute()
